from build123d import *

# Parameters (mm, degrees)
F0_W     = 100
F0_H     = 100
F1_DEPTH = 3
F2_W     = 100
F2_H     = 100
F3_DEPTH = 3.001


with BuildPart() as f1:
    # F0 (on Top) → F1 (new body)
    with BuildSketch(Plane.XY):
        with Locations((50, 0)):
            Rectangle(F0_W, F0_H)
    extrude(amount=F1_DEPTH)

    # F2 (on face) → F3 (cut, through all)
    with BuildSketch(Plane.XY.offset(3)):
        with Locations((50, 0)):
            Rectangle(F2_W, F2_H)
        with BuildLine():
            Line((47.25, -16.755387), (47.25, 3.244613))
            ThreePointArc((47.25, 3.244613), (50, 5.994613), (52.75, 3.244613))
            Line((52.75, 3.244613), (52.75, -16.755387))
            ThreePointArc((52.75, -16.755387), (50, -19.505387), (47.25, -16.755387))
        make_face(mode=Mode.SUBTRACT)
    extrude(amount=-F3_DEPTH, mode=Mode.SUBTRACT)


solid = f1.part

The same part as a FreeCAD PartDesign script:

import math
import FreeCAD as App
import Part
import Sketcher
Q = App.Units.Quantity

doc = App.newDocument("Part")
params = doc.addObject("Spreadsheet::Sheet", "Params")
for row, (alias, value) in enumerate([
    ("sketch1_width", "100 mm"),
    ("pad1_length", "3 mm"),
    ("sketch2_width", "100 mm"),
    ("sketch2_height", "20 mm"),
    ("sketch2_radius", "2.75 mm"),
], start=1):
    params.set(f"A{row}", alias)
    params.set(f"B{row}", "=" + value)
    params.setAlias(f"B{row}", alias)

body = doc.addObject("PartDesign::Body", "Body")

# Sketch on XY plane
sketch1 = body.newObject("Sketcher::SketchObject", "Sketch")
sketch1.AttachmentSupport = (doc.getObject("XY_Plane"), [""])
sketch1.MapMode = "FlatFace"
sketch1.addGeometry([
    Part.LineSegment(App.Vector(0, 50, 0), App.Vector(0, -50, 0)),
    Part.LineSegment(App.Vector(0, -50, 0), App.Vector(100, -50, 0)),
    Part.LineSegment(App.Vector(100, -50, 0), App.Vector(100, 50, 0)),
    Part.LineSegment(App.Vector(100, 50, 0), App.Vector(0, 50, 0)),
], False)
sketch1.addConstraint([
    Sketcher.Constraint("Coincident", 0, 2, 1, 1),
    Sketcher.Constraint("Coincident", 1, 2, 2, 1),
    Sketcher.Constraint("Coincident", 2, 2, 3, 1),
    Sketcher.Constraint("Coincident", 3, 2, 0, 1),
    Sketcher.Constraint("Vertical", 0),
    Sketcher.Constraint("Horizontal", 1),
    Sketcher.Constraint("Vertical", 2),
    Sketcher.Constraint("Horizontal", 3),
    Sketcher.Constraint("Symmetric", 0, 2, 3, 2, -1, 1),
    Sketcher.Constraint("Equal", 3, 0),
    Sketcher.Constraint("DistanceX", 1, 1, 1, 2, Q("100 mm")),
])
sketch1.setExpression("Constraints[10]", "Params.sketch1_width")
pad1 = body.newObject("PartDesign::Pad", "Pad")
pad1.Profile = sketch1
pad1.setExpression("Length", "Params.pad1_length")

# Sketch on XY plane
sketch2 = body.newObject("Sketcher::SketchObject", "Sketch001")
sketch2.AttachmentSupport = (doc.getObject("XY_Plane"), [""])
sketch2.MapMode = "FlatFace"
sketch2.AttachmentOffset = App.Placement(App.Vector(0, 0, 3), App.Rotation())
sketch2.addGeometry([
    Part.LineSegment(App.Vector(0, 50, 0), App.Vector(0, -50, 0)),  # 0
    Part.LineSegment(App.Vector(0, -50, 0), App.Vector(100, -50, 0)),  # 1
    Part.LineSegment(App.Vector(100, -50, 0), App.Vector(100, 50, 0)),  # 2
    Part.LineSegment(App.Vector(100, 50, 0), App.Vector(0, 50, 0)),  # 3
    Part.ArcOfCircle(Part.Circle(App.Vector(50, -16.8, 0), App.Vector(0, 0, 1), 2.8), math.radians(180), math.radians(360)),  # 4
    Part.LineSegment(App.Vector(47.2, -16.8, 0), App.Vector(47.2, 3.2, 0)),  # 5
    Part.ArcOfCircle(Part.Circle(App.Vector(50, 3.2, 0), App.Vector(0, 0, 1), 2.8), math.radians(0), math.radians(180)),  # 6
    Part.LineSegment(App.Vector(52.8, 3.2, 0), App.Vector(52.8, -16.8, 0)),  # 7
], False)
sketch2.addConstraint([
    Sketcher.Constraint("Coincident", 0, 2, 1, 1),
    Sketcher.Constraint("Coincident", 1, 2, 2, 1),
    Sketcher.Constraint("Coincident", 2, 2, 3, 1),
    Sketcher.Constraint("Coincident", 3, 2, 0, 1),
    Sketcher.Constraint("Tangent", 4, 1, 5, 1),
    Sketcher.Constraint("Tangent", 5, 2, 6, 2),
    Sketcher.Constraint("Tangent", 6, 1, 7, 1),
    Sketcher.Constraint("Tangent", 7, 2, 4, 2),
    Sketcher.Constraint("Vertical", 0),
    Sketcher.Constraint("Horizontal", 1),
    Sketcher.Constraint("Vertical", 2),
    Sketcher.Constraint("Horizontal", 3),
    Sketcher.Constraint("Vertical", 5),
    Sketcher.Constraint("Vertical", 7),
    Sketcher.Constraint("Symmetric", 0, 2, 3, 2, -1, 1),
    Sketcher.Constraint("Equal", 3, 0),
    Sketcher.Constraint("DistanceX", 1, 1, 1, 2, Q("100 mm")),
    Sketcher.Constraint("DistanceY", 5, 1, 5, 2, Q("20 mm")),
    Sketcher.Constraint("Radius", 4, Q("2.75 mm")),
    Sketcher.Constraint("DistanceX", -1, 1, 4, 3, Q("50 mm")),
    Sketcher.Constraint("DistanceY", 4, 3, -1, 1, Q("16.755387 mm")),
])
sketch2.setExpression("Constraints[16]", "Params.sketch2_width")
sketch2.setExpression("Constraints[17]", "Params.sketch2_height")
sketch2.setExpression("Constraints[18]", "Params.sketch2_radius")
pocket1 = body.newObject("PartDesign::Pocket", "Pocket")
pocket1.Profile = sketch2
pocket1.Type = "ThroughAll"

doc.recompute()
